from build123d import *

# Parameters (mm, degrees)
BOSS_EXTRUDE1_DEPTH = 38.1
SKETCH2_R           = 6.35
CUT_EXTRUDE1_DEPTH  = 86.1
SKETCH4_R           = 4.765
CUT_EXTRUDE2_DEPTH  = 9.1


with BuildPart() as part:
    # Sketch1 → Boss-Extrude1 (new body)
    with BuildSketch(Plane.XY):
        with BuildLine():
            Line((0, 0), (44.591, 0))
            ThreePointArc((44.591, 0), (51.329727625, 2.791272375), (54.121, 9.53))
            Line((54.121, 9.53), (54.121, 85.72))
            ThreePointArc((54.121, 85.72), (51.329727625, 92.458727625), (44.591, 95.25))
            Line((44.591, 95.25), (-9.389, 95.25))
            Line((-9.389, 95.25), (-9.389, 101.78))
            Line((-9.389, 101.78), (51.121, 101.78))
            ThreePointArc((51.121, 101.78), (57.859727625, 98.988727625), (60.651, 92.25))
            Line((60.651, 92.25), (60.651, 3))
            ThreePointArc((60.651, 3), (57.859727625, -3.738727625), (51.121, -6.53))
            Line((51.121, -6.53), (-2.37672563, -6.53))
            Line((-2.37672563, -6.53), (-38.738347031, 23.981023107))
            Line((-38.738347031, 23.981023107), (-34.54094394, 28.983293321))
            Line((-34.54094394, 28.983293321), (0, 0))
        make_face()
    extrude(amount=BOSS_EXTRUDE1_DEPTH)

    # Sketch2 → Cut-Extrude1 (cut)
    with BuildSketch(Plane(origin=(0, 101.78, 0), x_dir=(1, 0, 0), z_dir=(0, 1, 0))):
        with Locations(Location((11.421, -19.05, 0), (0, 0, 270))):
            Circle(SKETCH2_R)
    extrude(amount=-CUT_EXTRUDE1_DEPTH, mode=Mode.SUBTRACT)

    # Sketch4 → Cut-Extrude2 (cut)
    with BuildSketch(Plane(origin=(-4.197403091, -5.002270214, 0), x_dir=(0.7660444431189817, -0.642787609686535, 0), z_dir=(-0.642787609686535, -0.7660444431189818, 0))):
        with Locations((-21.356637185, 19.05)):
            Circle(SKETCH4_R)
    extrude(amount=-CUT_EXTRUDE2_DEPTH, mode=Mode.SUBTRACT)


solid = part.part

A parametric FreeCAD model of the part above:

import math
import FreeCAD as App
import Part
import Sketcher
from FreeCAD import Vector
Q = App.Units.Quantity

doc = App.newDocument("Part")
body = doc.addObject("PartDesign::Body", "Body")

sketch1 = doc.addObject("Sketcher::SketchObject", "Sketch")
body.addObject(sketch1)
sketch1.AttachmentSupport = (doc.XY_Plane, [""])
sketch1.MapMode = "FlatFace"
sketch1.addGeometry(Part.LineSegment(Vector(45, 0, 0), Vector(0, 0, 0)), False)
sketch1.addGeometry(Part.LineSegment(Vector(0, 0, 0), Vector(-35, 29, 0)), False)
sketch1.addGeometry(Part.LineSegment(Vector(-35, 29, 0), Vector(-39, 24, 0)), False)
sketch1.addGeometry(Part.LineSegment(Vector(-39, 24, 0), Vector(-2, -7, 0)), False)
sketch1.addGeometry(Part.LineSegment(Vector(-2, -7, 0), Vector(51, -7, 0)), False)
sketch1.addGeometry(Part.ArcOfCircle(Part.Circle(Vector(51, 3, 0), Vector(0, 0, 1), 10), math.radians(-90), math.radians(0)), False)
sketch1.addGeometry(Part.LineSegment(Vector(61, 3, 0), Vector(61, 92, 0)), False)
sketch1.addGeometry(Part.ArcOfCircle(Part.Circle(Vector(51, 92, 0), Vector(0, 0, 1), 10), math.radians(0), math.radians(90)), False)
sketch1.addGeometry(Part.LineSegment(Vector(51, 102, 0), Vector(-9, 102, 0)), False)
sketch1.addGeometry(Part.LineSegment(Vector(-9, 102, 0), Vector(-9, 95, 0)), False)
sketch1.addGeometry(Part.LineSegment(Vector(-9, 95, 0), Vector(45, 95, 0)), False)
sketch1.addGeometry(Part.ArcOfCircle(Part.Circle(Vector(45, 86, 0), Vector(0, 0, 1), 10), math.radians(0), math.radians(90)), False)
sketch1.addGeometry(Part.LineSegment(Vector(54, 86, 0), Vector(54, 10, 0)), False)
sketch1.addGeometry(Part.ArcOfCircle(Part.Circle(Vector(45, 10, 0), Vector(0, 0, 1), 10), math.radians(-90), math.radians(0)), False)
sketch1.addConstraint(Sketcher.Constraint("Coincident", 0, 2, 1, 1))
sketch1.addConstraint(Sketcher.Constraint("Coincident", 1, 2, 2, 1))
sketch1.addConstraint(Sketcher.Constraint("Coincident", 2, 2, 3, 1))
sketch1.addConstraint(Sketcher.Constraint("Coincident", 3, 2, 4, 1))
sketch1.addConstraint(Sketcher.Constraint("Tangent", 4, 2, 5, 1))
sketch1.addConstraint(Sketcher.Constraint("Tangent", 5, 2, 6, 1))
sketch1.addConstraint(Sketcher.Constraint("Tangent", 6, 2, 7, 1))
sketch1.addConstraint(Sketcher.Constraint("Tangent", 7, 2, 8, 1))
sketch1.addConstraint(Sketcher.Constraint("Coincident", 8, 2, 9, 1))
sketch1.addConstraint(Sketcher.Constraint("Coincident", 9, 2, 10, 1))
sketch1.addConstraint(Sketcher.Constraint("Tangent", 10, 2, 11, 2))
sketch1.addConstraint(Sketcher.Constraint("Tangent", 11, 1, 12, 1))
sketch1.addConstraint(Sketcher.Constraint("Tangent", 12, 2, 13, 2))
sketch1.addConstraint(Sketcher.Constraint("Tangent", 13, 1, 0, 1))
sketch1.addConstraint(Sketcher.Constraint("Horizontal", 0))
sketch1.addConstraint(Sketcher.Constraint("Horizontal", 4))
sketch1.addConstraint(Sketcher.Constraint("Vertical", 6))
sketch1.addConstraint(Sketcher.Constraint("Horizontal", 8))
sketch1.addConstraint(Sketcher.Constraint("Vertical", 9))
sketch1.addConstraint(Sketcher.Constraint("Horizontal", 10))
sketch1.addConstraint(Sketcher.Constraint("Vertical", 12))
sketch1.addConstraint(Sketcher.Constraint("Coincident", 0, 2, -1, 1))
sketch1.addConstraint(Sketcher.Constraint("Equal", 5, 7))
sketch1.addConstraint(Sketcher.Constraint("Equal", 7, 11))
sketch1.addConstraint(Sketcher.Constraint("Equal", 11, 13))
sketch1.addConstraint(Sketcher.Constraint("Perpendicular", 1, 2))
sketch1.addConstraint(Sketcher.Constraint("Perpendicular", 2, 3))
sketch1.addConstraint(Sketcher.Constraint("Angle", 1, Q("140 deg")))
sketch1.addConstraint(Sketcher.Constraint("Radius", 5, Q("9.53 mm")))
sketch1.addConstraint(Sketcher.Constraint("DistanceY", -1, 1, 5, 3, Q("3 mm")))
sketch1.addConstraint(Sketcher.Constraint("DistanceY", 7, 3, 9, 2, Q("3 mm")))
sketch1.addConstraint(Sketcher.Constraint("DistanceX", 7, 3, 11, 1, Q("3 mm")))
sketch1.addConstraint(Sketcher.Constraint("DistanceX", 8, 2, 8, 1, Q("60.51 mm")))
sketch1.addConstraint(Sketcher.Constraint("DistanceY", 6, 1, 6, 2, Q("89.25 mm")))
sketch1.addConstraint(Sketcher.Constraint("Distance", 1, Q("45.09 mm")))
sketch1.addConstraint(Sketcher.Constraint("Distance", 2, Q("6.53 mm")))
sketch1.addConstraint(Sketcher.Constraint("DistanceX", 0, 2, 0, 1, Q("44.591 mm")))
pad1 = doc.addObject("PartDesign::Pad", "Pad")
body.addObject(pad1)
pad1.Profile = sketch1
pad1.Length = 38.1

sketch2 = doc.addObject("Sketcher::SketchObject", "Sketch001")
body.addObject(sketch2)
sketch2.AttachmentSupport = (doc.XZ_Plane, [""])
sketch2.MapMode = "FlatFace"
sketch2.AttachmentOffset = App.Placement(Vector(0, 0, -101.78), App.Rotation())
sketch2.addGeometry(Part.Circle(Vector(11, 19, 0), Vector(0, 0, 1), 6), False)
sketch2.addConstraint(Sketcher.Constraint("Diameter", 0, Q("12.7 mm")))
sketch2.addConstraint(Sketcher.Constraint("DistanceY", -1, 1, 0, 3, Q("19.05 mm")))
sketch2.addConstraint(Sketcher.Constraint("DistanceX", -1, 1, 0, 3, Q("11.421 mm")))
pocket1 = doc.addObject("PartDesign::Pocket", "Pocket")
body.addObject(pocket1)
pocket1.Profile = sketch2
pocket1.Length = 86.1
pocket1.Reversed = True

sketch3 = doc.addObject("Sketcher::SketchObject", "Sketch002")
body.addObject(sketch3)
sketch3.Placement = App.Placement(Vector(-4.197403, -5.00227, 0), App.Rotation(Vector(0.766044443, -0.64278761, 0), Vector(0, 0, 1), Vector(-0.64278761, -0.766044443, 0), "ZXY"))
sketch3.addGeometry(Part.Circle(Vector(-21.4, 19.1, 0), Vector(0, 0, 1), 4.8), False)
sketch3.addConstraint(Sketcher.Constraint("Diameter", 0, Q("9.53 mm")))
sketch3.addConstraint(Sketcher.Constraint("DistanceY", -1, 1, 0, 3, Q("19.05 mm")))
sketch3.addConstraint(Sketcher.Constraint("DistanceX", 0, 3, -1, 1, Q("21.356637 mm")))
pocket2 = doc.addObject("PartDesign::Pocket", "Pocket001")
body.addObject(pocket2)
pocket2.Profile = sketch3
pocket2.Length = 9.1

doc.recompute()
